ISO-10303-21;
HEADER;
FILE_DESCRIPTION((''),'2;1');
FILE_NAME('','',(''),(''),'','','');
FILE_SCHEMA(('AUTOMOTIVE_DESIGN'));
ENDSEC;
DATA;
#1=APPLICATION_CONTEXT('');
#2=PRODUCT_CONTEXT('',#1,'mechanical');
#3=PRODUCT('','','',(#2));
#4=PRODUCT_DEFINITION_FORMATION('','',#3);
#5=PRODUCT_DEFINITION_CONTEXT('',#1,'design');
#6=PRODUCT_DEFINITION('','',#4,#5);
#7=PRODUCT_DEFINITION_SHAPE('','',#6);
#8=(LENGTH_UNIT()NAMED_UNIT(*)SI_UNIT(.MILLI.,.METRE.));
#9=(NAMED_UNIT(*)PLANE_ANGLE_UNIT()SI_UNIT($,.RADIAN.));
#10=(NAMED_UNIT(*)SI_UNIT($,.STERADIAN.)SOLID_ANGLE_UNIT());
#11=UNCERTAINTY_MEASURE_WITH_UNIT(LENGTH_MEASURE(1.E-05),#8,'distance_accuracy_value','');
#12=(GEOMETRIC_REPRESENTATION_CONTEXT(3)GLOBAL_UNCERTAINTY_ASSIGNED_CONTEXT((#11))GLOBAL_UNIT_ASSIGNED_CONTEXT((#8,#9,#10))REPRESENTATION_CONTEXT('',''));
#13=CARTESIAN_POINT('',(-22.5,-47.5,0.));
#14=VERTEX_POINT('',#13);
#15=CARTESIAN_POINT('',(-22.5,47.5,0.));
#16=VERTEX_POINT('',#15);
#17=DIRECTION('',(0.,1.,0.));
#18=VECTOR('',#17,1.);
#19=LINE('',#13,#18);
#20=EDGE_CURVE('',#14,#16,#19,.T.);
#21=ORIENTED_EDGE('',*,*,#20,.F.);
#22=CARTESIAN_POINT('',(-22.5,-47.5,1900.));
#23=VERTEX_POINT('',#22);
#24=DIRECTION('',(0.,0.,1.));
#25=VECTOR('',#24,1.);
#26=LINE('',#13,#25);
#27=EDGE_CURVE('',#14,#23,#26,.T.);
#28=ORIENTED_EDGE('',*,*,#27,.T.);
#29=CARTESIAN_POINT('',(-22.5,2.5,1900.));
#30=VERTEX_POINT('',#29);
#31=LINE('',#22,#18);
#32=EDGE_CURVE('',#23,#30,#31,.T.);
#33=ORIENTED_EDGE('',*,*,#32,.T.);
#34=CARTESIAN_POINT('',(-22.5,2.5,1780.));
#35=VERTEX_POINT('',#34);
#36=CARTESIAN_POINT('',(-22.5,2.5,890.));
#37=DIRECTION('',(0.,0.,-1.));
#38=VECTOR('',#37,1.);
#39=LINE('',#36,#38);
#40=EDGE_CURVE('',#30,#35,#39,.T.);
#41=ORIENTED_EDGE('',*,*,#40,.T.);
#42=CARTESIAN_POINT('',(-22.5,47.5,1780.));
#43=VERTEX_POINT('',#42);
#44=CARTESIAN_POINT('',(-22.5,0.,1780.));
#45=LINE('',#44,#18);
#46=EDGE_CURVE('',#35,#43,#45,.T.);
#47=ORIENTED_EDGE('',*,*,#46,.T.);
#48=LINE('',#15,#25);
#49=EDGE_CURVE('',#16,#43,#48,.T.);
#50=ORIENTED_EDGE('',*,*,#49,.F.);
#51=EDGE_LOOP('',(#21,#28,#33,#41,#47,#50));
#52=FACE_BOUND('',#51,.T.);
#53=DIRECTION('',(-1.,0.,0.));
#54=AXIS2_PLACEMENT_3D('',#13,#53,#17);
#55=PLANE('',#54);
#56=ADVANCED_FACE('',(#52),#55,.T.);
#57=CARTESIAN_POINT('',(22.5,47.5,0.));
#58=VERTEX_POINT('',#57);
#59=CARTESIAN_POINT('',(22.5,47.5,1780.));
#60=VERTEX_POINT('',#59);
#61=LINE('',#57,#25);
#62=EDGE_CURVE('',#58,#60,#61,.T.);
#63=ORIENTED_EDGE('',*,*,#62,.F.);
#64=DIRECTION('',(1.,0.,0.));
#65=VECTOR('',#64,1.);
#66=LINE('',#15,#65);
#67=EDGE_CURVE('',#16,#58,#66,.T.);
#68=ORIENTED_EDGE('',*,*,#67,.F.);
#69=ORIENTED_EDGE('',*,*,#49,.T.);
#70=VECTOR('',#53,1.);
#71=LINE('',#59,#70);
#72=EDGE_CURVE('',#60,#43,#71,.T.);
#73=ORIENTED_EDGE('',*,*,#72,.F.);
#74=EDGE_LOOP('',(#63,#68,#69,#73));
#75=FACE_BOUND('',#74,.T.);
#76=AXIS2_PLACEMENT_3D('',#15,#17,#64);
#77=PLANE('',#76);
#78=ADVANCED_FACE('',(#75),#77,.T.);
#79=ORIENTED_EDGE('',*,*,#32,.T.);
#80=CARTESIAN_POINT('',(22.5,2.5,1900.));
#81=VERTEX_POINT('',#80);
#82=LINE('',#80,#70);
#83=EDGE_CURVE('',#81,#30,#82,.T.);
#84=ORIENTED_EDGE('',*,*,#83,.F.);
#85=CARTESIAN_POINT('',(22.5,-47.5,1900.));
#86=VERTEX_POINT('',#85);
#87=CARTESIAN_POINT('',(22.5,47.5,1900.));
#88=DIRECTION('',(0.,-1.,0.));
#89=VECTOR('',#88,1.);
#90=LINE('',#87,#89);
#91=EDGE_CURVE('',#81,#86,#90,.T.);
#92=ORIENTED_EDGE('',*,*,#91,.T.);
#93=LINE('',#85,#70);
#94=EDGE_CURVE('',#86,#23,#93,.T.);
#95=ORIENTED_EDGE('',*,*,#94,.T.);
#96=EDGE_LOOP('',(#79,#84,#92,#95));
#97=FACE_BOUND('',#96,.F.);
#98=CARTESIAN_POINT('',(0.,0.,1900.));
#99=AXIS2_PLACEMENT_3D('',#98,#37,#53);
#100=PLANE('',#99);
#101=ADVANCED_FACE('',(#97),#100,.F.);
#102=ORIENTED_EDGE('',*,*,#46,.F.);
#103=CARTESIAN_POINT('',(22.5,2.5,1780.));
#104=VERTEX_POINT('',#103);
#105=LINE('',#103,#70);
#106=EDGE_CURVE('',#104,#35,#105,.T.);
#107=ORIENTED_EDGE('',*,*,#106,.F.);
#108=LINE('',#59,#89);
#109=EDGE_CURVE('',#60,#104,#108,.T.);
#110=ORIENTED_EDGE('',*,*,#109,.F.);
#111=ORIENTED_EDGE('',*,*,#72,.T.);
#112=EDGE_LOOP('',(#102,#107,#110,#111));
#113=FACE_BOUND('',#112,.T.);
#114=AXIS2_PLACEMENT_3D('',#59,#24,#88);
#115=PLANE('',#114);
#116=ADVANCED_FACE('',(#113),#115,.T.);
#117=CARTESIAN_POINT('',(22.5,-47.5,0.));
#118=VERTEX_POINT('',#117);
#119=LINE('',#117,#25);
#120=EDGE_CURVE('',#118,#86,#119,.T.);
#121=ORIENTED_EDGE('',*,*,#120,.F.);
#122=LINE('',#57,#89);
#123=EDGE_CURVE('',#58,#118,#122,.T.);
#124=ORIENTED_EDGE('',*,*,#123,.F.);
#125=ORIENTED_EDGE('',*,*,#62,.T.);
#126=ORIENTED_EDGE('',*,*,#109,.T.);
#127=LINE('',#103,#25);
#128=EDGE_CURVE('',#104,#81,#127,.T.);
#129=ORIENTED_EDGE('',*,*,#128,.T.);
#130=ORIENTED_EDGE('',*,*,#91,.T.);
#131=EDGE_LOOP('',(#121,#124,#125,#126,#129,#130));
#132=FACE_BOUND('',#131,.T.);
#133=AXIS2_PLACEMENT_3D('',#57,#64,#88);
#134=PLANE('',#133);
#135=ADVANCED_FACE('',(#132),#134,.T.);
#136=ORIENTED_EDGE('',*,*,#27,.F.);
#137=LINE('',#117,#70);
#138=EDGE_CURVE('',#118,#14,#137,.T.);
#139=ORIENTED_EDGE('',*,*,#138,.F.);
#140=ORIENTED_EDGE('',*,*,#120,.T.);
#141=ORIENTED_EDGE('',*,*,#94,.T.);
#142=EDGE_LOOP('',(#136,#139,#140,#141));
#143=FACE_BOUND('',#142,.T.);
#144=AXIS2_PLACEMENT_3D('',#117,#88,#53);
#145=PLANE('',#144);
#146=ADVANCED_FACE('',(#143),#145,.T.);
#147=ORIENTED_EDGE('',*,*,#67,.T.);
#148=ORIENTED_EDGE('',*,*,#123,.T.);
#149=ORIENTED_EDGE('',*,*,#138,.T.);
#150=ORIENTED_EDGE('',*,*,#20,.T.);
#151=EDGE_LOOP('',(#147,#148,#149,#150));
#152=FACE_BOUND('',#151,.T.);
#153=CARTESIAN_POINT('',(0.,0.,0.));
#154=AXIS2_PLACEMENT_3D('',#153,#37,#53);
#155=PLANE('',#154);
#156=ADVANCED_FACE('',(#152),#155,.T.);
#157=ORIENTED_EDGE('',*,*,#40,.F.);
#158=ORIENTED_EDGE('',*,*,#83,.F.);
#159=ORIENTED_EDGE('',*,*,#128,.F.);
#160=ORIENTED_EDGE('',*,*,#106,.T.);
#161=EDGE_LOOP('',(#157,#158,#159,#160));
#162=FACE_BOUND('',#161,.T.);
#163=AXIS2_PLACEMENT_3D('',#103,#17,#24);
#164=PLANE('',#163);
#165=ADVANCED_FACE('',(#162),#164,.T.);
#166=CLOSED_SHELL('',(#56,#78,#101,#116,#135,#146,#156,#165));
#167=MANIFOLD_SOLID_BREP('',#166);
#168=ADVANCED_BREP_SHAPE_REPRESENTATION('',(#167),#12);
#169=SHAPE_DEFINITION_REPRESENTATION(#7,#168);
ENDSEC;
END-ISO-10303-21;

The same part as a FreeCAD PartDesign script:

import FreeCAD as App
import Part
import Sketcher

V = App.Vector
Q = App.Units.Quantity

doc = App.newDocument("Part")
body = doc.addObject("PartDesign::Body", "Body")

# Sketch on XY plane
sketch1 = doc.addObject("Sketcher::SketchObject", "Sketch")
body.addObject(sketch1)
sketch1.AttachmentSupport = (doc.XY_Plane, [""])
sketch1.MapMode = "FlatFace"
sketch1.addGeometry([
    Part.LineSegment(V(22, 48, 0), V(22, -48, 0)),
    Part.LineSegment(V(22, -48, 0), V(-22, -48, 0)),
    Part.LineSegment(V(-22, -48, 0), V(-22, 48, 0)),
    Part.LineSegment(V(-22, 48, 0), V(22, 48, 0)),
], False)
sketch1.addConstraint([
    Sketcher.Constraint("Coincident", 0, 2, 1, 1),
    Sketcher.Constraint("Coincident", 1, 2, 2, 1),
    Sketcher.Constraint("Coincident", 2, 2, 3, 1),
    Sketcher.Constraint("Coincident", 3, 2, 0, 1),
    Sketcher.Constraint("Vertical", 0),
    Sketcher.Constraint("Horizontal", 1),
    Sketcher.Constraint("Vertical", 2),
    Sketcher.Constraint("Horizontal", 3),
    Sketcher.Constraint("Symmetric", 0, 2, 2, 2, -1, 1),
    Sketcher.Constraint("DistanceX", 1, 2, 1, 1, Q("45 mm")),
    Sketcher.Constraint("DistanceY", 0, 2, 0, 1, Q("95 mm")),
])
pad1 = doc.addObject("PartDesign::Pad", "Pad")
body.addObject(pad1)
pad1.Profile = sketch1
pad1.Length = 1900

# Sketch on YZ plane
sketch2 = doc.addObject("Sketcher::SketchObject", "Sketch001")
body.addObject(sketch2)
sketch2.AttachmentSupport = (doc.YZ_Plane, [""])
sketch2.MapMode = "FlatFace"
sketch2.AttachmentOffset = App.Placement(V(0, 0, 22.5), App.Rotation())
sketch2.addGeometry([
    Part.LineSegment(V(48, 1780, 0), V(48, 1900, 0)),
    Part.LineSegment(V(48, 1900, 0), V(2, 1900, 0)),
    Part.LineSegment(V(2, 1900, 0), V(2, 1780, 0)),
    Part.LineSegment(V(2, 1780, 0), V(48, 1780, 0)),
], False)
sketch2.addConstraint([
    Sketcher.Constraint("Coincident", 0, 2, 1, 1),
    Sketcher.Constraint("Coincident", 1, 2, 2, 1),
    Sketcher.Constraint("Coincident", 2, 2, 3, 1),
    Sketcher.Constraint("Coincident", 3, 2, 0, 1),
    Sketcher.Constraint("Vertical", 0),
    Sketcher.Constraint("Horizontal", 1),
    Sketcher.Constraint("Vertical", 2),
    Sketcher.Constraint("Horizontal", 3),
    Sketcher.Constraint("DistanceX", 1, 2, 1, 1, Q("45 mm")),
    Sketcher.Constraint("DistanceY", 0, 1, 0, 2, Q("120 mm")),
    Sketcher.Constraint("DistanceY", -1, 1, 0, 2, Q("1900 mm")),
    Sketcher.Constraint("DistanceX", -1, 1, 0, 2, Q("47.5 mm")),
])
pocket1 = doc.addObject("PartDesign::Pocket", "Pocket")
body.addObject(pocket1)
pocket1.Profile = sketch2
pocket1.Length = 397.3031

doc.recompute()
